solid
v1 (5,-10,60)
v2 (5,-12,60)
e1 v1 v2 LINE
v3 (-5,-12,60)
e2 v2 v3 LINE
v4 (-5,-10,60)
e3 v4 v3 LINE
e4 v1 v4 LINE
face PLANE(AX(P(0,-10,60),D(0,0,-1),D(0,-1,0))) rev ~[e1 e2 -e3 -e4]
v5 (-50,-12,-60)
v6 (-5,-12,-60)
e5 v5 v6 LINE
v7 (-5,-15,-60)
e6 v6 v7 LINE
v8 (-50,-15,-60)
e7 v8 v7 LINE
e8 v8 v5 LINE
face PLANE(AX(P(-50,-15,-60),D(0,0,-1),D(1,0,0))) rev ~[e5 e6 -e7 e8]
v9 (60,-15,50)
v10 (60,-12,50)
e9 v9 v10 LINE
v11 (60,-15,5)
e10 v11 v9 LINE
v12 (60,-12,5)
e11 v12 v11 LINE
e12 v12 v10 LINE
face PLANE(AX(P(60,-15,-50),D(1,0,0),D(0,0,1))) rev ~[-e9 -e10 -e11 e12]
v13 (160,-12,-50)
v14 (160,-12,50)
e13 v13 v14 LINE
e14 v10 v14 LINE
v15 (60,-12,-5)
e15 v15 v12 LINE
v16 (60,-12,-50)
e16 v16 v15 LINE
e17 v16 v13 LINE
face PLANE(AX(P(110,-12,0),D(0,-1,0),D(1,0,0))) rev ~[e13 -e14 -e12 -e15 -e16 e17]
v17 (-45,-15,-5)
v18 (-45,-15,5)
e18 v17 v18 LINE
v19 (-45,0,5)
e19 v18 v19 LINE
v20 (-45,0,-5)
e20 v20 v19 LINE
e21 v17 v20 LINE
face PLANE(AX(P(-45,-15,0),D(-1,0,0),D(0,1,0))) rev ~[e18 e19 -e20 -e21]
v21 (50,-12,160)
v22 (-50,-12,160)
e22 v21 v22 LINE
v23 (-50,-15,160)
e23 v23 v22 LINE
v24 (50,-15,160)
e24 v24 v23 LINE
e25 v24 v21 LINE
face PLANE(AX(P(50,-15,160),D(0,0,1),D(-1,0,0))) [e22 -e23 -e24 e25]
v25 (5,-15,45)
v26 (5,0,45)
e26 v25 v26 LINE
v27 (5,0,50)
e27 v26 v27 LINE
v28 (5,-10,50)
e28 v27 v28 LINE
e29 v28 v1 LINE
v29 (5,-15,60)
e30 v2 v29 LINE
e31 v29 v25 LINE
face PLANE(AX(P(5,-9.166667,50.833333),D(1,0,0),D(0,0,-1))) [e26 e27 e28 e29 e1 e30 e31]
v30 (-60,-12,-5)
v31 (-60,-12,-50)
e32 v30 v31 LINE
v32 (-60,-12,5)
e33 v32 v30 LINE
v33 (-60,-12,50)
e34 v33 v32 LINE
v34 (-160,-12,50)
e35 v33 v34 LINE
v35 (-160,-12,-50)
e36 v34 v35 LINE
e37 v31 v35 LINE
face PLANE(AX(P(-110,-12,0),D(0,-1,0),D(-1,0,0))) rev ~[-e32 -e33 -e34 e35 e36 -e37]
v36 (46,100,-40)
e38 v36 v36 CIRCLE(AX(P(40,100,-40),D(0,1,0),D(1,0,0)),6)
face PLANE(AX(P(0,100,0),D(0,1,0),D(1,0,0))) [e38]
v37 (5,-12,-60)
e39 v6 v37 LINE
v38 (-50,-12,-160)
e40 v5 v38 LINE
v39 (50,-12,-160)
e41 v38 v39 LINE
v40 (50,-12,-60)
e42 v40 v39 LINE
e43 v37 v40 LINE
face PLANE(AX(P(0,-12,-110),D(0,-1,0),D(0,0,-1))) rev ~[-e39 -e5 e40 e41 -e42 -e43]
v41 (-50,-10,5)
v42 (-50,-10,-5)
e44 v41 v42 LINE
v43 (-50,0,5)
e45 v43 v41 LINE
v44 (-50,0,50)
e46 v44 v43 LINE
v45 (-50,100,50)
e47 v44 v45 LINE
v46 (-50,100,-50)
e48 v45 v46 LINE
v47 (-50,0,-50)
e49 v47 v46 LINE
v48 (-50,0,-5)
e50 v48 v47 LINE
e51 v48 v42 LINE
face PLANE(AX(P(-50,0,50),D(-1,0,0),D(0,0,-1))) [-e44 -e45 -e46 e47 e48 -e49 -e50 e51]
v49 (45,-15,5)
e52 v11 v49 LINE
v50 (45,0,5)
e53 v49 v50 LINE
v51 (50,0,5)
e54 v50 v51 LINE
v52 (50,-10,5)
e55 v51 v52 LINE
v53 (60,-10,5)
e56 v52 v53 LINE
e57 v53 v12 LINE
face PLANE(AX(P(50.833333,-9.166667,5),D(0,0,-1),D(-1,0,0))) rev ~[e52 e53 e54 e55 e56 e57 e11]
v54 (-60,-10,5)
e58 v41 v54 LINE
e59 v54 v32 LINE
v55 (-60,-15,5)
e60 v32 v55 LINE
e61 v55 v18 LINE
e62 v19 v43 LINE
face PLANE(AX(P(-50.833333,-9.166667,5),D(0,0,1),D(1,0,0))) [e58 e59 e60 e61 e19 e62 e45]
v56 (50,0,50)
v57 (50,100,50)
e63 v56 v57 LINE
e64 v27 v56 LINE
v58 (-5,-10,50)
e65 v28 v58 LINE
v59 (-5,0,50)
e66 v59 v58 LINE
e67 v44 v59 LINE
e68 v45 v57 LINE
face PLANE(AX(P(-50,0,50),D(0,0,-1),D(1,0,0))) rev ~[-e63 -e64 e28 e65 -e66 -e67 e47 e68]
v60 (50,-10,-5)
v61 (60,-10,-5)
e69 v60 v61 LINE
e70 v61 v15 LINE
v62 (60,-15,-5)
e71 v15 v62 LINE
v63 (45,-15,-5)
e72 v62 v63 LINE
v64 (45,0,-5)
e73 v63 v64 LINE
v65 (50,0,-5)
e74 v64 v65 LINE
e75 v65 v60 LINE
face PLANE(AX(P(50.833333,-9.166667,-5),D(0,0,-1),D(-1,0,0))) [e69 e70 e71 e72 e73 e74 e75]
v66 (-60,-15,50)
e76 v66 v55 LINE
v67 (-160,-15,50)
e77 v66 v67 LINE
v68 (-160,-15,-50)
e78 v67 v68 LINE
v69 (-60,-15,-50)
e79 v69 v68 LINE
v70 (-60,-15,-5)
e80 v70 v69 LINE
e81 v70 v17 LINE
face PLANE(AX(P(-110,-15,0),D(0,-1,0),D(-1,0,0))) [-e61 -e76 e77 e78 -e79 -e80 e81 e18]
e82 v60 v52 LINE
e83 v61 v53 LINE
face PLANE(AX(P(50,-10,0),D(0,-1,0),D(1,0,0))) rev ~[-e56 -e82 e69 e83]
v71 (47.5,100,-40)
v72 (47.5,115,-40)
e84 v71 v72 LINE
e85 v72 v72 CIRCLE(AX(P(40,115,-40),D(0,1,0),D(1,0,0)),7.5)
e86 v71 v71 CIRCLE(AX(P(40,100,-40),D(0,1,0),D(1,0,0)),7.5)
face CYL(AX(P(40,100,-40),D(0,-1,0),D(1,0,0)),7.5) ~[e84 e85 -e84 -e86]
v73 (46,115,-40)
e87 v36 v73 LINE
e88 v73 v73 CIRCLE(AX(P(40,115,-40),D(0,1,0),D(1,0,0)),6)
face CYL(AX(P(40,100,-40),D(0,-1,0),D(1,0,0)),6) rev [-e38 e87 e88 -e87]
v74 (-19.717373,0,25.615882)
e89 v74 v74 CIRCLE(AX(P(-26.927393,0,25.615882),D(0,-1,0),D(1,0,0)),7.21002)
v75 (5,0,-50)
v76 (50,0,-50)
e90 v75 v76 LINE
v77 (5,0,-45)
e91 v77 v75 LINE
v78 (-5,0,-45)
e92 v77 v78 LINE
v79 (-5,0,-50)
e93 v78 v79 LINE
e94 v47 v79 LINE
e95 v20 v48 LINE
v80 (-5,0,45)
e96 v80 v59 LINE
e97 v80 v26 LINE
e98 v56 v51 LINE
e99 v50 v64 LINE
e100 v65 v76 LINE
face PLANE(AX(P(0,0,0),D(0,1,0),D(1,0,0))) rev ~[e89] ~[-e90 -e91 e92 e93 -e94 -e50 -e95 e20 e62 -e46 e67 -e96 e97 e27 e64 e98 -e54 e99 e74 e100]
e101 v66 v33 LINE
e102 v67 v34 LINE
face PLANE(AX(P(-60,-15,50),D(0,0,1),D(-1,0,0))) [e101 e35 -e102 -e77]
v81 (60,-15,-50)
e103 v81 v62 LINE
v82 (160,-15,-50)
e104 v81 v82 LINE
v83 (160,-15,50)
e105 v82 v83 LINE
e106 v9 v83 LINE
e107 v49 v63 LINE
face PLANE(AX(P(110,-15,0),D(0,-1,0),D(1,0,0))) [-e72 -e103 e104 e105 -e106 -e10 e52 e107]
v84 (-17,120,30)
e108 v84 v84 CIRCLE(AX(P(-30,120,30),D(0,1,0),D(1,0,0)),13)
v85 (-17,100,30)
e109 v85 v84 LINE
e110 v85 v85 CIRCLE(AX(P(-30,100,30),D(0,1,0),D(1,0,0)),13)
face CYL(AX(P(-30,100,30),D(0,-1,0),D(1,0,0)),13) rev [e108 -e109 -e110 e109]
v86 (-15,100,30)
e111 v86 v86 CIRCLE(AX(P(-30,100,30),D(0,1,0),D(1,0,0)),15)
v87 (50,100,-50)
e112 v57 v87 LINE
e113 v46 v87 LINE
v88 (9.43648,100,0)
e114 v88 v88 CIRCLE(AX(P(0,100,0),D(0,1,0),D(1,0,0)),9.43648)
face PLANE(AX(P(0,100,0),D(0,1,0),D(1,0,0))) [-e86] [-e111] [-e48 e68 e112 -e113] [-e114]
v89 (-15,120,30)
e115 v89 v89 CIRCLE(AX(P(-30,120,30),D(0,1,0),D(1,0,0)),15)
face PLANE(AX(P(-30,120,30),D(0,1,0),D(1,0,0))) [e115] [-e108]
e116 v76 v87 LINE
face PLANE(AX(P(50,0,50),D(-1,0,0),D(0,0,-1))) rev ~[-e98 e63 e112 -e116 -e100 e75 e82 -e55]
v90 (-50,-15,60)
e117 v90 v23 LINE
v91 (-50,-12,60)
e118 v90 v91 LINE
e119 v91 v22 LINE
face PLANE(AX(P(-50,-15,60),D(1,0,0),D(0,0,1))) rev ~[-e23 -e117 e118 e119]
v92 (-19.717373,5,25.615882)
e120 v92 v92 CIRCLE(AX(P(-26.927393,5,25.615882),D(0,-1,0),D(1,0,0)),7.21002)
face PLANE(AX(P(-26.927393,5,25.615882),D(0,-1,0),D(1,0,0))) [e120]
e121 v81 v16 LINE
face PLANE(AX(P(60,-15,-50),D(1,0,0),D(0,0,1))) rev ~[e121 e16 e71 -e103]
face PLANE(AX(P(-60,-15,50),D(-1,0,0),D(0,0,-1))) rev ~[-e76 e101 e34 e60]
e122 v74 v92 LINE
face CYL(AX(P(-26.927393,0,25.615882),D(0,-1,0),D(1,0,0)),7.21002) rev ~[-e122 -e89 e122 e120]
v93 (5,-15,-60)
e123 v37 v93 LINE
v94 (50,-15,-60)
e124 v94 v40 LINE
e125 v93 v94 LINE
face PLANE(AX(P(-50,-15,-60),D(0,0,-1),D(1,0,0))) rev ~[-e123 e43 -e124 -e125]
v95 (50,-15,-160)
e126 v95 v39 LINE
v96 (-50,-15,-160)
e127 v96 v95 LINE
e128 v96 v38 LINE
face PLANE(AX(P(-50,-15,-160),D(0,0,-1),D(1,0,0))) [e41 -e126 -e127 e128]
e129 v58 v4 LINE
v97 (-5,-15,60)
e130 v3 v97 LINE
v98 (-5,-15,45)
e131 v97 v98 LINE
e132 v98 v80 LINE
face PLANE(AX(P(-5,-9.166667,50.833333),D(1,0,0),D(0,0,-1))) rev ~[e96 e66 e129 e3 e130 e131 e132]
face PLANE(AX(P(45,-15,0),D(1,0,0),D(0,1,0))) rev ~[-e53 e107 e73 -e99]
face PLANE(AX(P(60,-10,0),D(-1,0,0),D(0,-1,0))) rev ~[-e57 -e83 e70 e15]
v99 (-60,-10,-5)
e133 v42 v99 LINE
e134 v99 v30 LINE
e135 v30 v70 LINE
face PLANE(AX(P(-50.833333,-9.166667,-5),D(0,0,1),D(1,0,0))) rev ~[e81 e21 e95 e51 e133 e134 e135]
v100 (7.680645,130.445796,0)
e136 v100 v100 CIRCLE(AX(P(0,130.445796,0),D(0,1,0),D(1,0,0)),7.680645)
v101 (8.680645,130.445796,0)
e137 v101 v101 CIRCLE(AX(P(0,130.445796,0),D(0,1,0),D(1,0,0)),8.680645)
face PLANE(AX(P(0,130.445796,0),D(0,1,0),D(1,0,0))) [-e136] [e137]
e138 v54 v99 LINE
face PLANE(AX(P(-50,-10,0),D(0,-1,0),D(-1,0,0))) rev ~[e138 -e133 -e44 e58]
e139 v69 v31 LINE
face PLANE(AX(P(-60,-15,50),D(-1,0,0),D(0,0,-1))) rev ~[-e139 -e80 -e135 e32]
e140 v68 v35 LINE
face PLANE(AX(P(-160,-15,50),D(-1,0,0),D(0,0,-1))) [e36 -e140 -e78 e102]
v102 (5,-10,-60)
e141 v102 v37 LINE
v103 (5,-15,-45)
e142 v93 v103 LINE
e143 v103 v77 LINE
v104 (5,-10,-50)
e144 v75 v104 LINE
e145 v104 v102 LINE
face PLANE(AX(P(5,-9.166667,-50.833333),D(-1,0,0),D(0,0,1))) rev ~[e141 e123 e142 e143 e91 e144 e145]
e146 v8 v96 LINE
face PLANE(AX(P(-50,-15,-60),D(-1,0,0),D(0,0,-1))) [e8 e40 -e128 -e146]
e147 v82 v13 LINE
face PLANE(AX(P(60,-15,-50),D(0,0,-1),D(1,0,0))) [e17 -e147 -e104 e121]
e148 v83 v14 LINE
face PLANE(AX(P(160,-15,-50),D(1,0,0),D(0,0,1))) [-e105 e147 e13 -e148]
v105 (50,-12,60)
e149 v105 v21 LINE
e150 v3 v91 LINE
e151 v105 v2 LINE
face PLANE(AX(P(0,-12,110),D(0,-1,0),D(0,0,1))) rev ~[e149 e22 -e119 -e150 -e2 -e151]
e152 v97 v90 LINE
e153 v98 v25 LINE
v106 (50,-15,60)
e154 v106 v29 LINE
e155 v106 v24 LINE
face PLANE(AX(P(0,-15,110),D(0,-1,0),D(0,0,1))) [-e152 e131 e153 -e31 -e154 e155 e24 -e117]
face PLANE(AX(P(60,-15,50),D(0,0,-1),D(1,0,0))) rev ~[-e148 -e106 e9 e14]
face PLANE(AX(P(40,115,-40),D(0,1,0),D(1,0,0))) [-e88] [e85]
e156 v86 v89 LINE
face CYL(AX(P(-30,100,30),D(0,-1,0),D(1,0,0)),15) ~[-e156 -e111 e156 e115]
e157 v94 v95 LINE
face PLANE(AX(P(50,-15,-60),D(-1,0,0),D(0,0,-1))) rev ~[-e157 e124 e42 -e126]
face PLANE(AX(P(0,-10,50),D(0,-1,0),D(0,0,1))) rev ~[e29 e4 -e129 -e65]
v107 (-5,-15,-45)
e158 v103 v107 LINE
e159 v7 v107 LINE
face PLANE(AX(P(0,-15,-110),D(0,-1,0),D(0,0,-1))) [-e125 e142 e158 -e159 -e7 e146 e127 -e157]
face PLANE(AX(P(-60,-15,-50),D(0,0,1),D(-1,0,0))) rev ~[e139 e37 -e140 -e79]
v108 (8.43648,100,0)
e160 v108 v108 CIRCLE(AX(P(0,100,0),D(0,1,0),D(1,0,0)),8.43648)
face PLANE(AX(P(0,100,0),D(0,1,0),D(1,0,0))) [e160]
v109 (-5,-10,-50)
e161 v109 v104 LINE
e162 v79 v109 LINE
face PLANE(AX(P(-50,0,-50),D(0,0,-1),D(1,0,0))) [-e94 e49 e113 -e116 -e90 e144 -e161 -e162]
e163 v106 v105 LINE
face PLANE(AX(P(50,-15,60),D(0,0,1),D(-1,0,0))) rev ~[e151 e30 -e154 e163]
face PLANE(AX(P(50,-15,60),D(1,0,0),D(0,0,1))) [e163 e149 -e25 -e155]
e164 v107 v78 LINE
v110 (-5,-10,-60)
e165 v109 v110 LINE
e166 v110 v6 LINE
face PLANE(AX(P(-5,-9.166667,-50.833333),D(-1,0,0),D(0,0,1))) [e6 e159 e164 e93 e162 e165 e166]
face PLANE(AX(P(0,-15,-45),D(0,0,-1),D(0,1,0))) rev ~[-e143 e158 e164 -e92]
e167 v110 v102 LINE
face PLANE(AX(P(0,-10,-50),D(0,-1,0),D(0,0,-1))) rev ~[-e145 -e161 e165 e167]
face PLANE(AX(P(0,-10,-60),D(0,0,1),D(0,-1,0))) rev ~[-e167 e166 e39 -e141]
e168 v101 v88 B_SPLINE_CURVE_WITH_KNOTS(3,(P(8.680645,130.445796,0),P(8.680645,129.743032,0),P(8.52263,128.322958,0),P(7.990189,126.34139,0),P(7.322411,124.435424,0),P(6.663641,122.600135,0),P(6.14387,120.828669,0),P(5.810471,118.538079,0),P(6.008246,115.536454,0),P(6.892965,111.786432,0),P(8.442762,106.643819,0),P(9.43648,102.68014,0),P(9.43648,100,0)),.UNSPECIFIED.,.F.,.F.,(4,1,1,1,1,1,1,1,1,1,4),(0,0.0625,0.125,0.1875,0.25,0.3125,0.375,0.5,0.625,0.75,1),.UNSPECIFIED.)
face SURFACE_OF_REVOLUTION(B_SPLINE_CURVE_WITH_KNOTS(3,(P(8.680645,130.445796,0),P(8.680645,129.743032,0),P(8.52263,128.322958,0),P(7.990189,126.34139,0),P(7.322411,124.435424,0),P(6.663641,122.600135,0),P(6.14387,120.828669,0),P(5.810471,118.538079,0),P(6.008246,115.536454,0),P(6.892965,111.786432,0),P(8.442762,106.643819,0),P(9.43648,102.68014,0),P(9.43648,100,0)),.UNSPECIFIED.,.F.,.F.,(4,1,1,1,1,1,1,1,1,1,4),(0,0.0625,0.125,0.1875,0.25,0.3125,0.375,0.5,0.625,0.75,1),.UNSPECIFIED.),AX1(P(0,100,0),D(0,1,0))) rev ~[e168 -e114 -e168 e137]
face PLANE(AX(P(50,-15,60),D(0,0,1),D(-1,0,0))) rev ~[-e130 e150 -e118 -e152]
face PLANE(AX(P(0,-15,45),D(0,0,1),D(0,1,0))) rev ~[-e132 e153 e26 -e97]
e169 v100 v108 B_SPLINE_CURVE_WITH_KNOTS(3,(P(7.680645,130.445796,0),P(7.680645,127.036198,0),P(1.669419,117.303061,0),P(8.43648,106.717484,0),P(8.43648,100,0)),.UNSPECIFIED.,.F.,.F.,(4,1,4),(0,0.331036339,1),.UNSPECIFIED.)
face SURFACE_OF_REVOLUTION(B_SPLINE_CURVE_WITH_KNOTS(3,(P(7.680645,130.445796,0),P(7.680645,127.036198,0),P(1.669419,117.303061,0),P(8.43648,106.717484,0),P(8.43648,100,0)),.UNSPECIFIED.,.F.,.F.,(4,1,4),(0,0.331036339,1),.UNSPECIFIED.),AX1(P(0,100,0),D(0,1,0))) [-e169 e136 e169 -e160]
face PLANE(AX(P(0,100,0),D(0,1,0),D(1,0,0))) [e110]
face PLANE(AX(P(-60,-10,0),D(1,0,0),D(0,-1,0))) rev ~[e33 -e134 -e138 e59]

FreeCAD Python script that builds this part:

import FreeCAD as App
import Part
import Sketcher

V = App.Vector


def add_polygon(sketch, points):
    """Adds a closed chain of lines whose ends are joined by coincident constraints."""
    first, n = sketch.GeometryCount, len(points)
    for a, b in zip(points, points[1:] + points[:1]):
        sketch.addGeometry(Part.LineSegment(App.Vector(*a, 0), App.Vector(*b, 0)), False)
    for i in range(n):
        sketch.addConstraint(Sketcher.Constraint("Coincident", first + i, 2, first + (i + 1) % n, 1))

doc = App.newDocument("Part")
params = doc.addObject("Spreadsheet::Sheet", "Params")
for row, (alias, value) in enumerate([
    ("sketch1_width", "100 mm"),
    ("pad1_length", "100 mm"),
    ("sketch2_width", "10 mm"),
    ("sketch2_width2", "5 mm"),
    ("pad2_length", "10 mm"),
    ("sketch3_width", "100 mm"),
    ("pad3_length", "3 mm"),
    ("sketch4_diameter", "30 mm"),
    ("sketch4_diameter2", "26 mm"),
    ("pad4_length", "20 mm"),
    ("sketch5_diameter", "15 mm"),
    ("sketch5_diameter2", "12 mm"),
    ("pad5_length", "15 mm"),
    ("revolution_angle", "360 deg"),
    ("pocket1_length", "5 mm"),
], start=1):
    params.set(f"A{row}", alias)
    params.set(f"B{row}", "=" + value)
    params.setAlias(f"B{row}", alias)

body = doc.addObject("PartDesign::Body", "Body")

sketch1 = body.newObject("Sketcher::SketchObject", "Sketch")
sketch1.AttachmentSupport = (doc.getObject("XZ_Plane"), [""])
sketch1.MapMode = "FlatFace"
add_polygon(sketch1, [(-50, -50), (-50, 50), (50, 50), (50, -50)])
sketch1.addConstraint([
    Sketcher.Constraint("Vertical", 0),
    Sketcher.Constraint("Horizontal", 1),
    Sketcher.Constraint("Vertical", 2),
    Sketcher.Constraint("Horizontal", 3),
    Sketcher.Constraint("Symmetric", 0, 2, 2, 2, -1, 1),
    Sketcher.Constraint("Equal", 3, 0),
    Sketcher.Constraint("DistanceX", 1, 1, 1, 2, 100.0),
])
sketch1.setExpression("Constraints[10]", "Params.sketch1_width")
pad1 = body.newObject("PartDesign::Pad", "Pad")
pad1.Profile = sketch1
pad1.setExpression("Length", "Params.pad1_length")
pad1.Reversed = True

sketch2 = body.newObject("Sketcher::SketchObject", "Sketch001")
sketch2.AttachmentSupport = (doc.getObject("XY_Plane"), [""])
sketch2.MapMode = "FlatFace"
add_polygon(sketch2, [(60, -15), (60, -10), (50, -10), (50, 0), (45, 0), (45, -15)])
sketch2.addConstraint([
    Sketcher.Constraint("Vertical", 0),
    Sketcher.Constraint("Horizontal", 1),
    Sketcher.Constraint("Vertical", 2),
    Sketcher.Constraint("Horizontal", 3),
    Sketcher.Constraint("Vertical", 4),
    Sketcher.Constraint("Horizontal", 5),
    Sketcher.Constraint("PointOnObject", 2, 2, -1),
    Sketcher.Constraint("Equal", 3, 0),
    Sketcher.Constraint("Equal", 1, 2),
    Sketcher.Constraint("DistanceX", 1, 2, 1, 1, 10.0),
    Sketcher.Constraint("DistanceX", 3, 2, 3, 1, 5.0),
    Sketcher.Constraint("DistanceX", -1, 1, 0, 2, 60.0),
])
sketch2.setExpression("Constraints[15]", "Params.sketch2_width")
sketch2.setExpression("Constraints[16]", "Params.sketch2_width2")
pad2 = body.newObject("PartDesign::Pad", "Pad001")
pad2.Profile = sketch2
pad2.setExpression("Length", "Params.pad2_length")
pad2.Midplane = True

sketch3 = body.newObject("Sketcher::SketchObject", "Sketch002")
sketch3.AttachmentSupport = (doc.getObject("XZ_Plane"), [""])
sketch3.MapMode = "FlatFace"
sketch3.AttachmentOffset = App.Placement(V(0, 0, 15), App.Rotation())
add_polygon(sketch3, [(60, 50), (60, -50), (160, -50), (160, 50)])
sketch3.addConstraint([
    Sketcher.Constraint("Vertical", 0),
    Sketcher.Constraint("Horizontal", 1),
    Sketcher.Constraint("Vertical", 2),
    Sketcher.Constraint("Horizontal", 3),
    Sketcher.Constraint("Equal", 3, 0),
    Sketcher.Constraint("DistanceX", 1, 1, 1, 2, 100.0),
    Sketcher.Constraint("DistanceX", -1, 1, 0, 2, 60.0),
    Sketcher.Constraint("DistanceY", 0, 2, -1, 1, 50.0),
])
sketch3.setExpression("Constraints[9]", "Params.sketch3_width")
pad3 = body.newObject("PartDesign::Pad", "Pad002")
pad3.Profile = sketch3
pad3.setExpression("Length", "Params.pad3_length")
pad3.Reversed = True
doc.recompute()

polarpattern = body.newObject("PartDesign::PolarPattern", "PolarPattern")
polarpattern.Originals = [pad2, pad3]
polarpattern.Axis = (doc.getObject("Y_Axis"), [""])
polarpattern.Angle = 360
polarpattern.Occurrences = 4
body.Tip = polarpattern

sketch4 = body.newObject("Sketcher::SketchObject", "Sketch003")
sketch4.AttachmentSupport = (doc.getObject("XZ_Plane"), [""])
sketch4.MapMode = "FlatFace"
sketch4.AttachmentOffset = App.Placement(V(0, 0, -100), App.Rotation())
sketch4.addGeometry([
    Part.Circle(V(-30, 30, 0), V(0, 0, 1), 15),
    Part.Circle(V(-30, 30, 0), V(0, 0, 1), 13),
], False)
sketch4.addConstraint([
    Sketcher.Constraint("Coincident", 1, 3, 0, 3),
    Sketcher.Constraint("Diameter", 0, 30.0),
    Sketcher.Constraint("Diameter", 1, 26.0),
    Sketcher.Constraint("DistanceX", 0, 3, -1, 1, 30.0),
    Sketcher.Constraint("DistanceY", -1, 1, 0, 3, 30.0),
])
sketch4.setExpression("Constraints[1]", "Params.sketch4_diameter")
sketch4.setExpression("Constraints[2]", "Params.sketch4_diameter2")
pad4 = body.newObject("PartDesign::Pad", "Pad003")
pad4.Profile = sketch4
pad4.setExpression("Length", "Params.pad4_length")
pad4.Reversed = True

sketch5 = body.newObject("Sketcher::SketchObject", "Sketch004")
sketch5.AttachmentSupport = (doc.getObject("XZ_Plane"), [""])
sketch5.MapMode = "FlatFace"
sketch5.AttachmentOffset = App.Placement(V(0, 0, -100), App.Rotation())
sketch5.addGeometry([
    Part.Circle(V(40, -40, 0), V(0, 0, 1), 8),
    Part.Circle(V(40, -40, 0), V(0, 0, 1), 6),
], False)
sketch5.addConstraint([
    Sketcher.Constraint("Coincident", 1, 3, 0, 3),
    Sketcher.Constraint("Diameter", 0, 15.0),
    Sketcher.Constraint("Diameter", 1, 12.0),
    Sketcher.Constraint("DistanceX", -1, 1, 0, 3, 40.0),
    Sketcher.Constraint("DistanceY", 0, 3, -1, 1, 40.0),
])
sketch5.setExpression("Constraints[1]", "Params.sketch5_diameter")
sketch5.setExpression("Constraints[2]", "Params.sketch5_diameter2")
pad5 = body.newObject("PartDesign::Pad", "Pad004")
pad5.Profile = sketch5
pad5.setExpression("Length", "Params.pad5_length")
pad5.Reversed = True

sketch6 = body.newObject("Sketcher::SketchObject", "Sketch005")
sketch6.AttachmentSupport = (doc.getObject("XY_Plane"), [""])
sketch6.MapMode = "FlatFace"
sketch6.addGeometry([
    Part.LineSegment(V(8.680645, 130.445796, 0), V(7.680645, 130.445796, 0)),
    Part.BSplineCurve([V(7.680645, 130.445796, 0), V(7.680645, 127.036198, 0), V(1.669419, 117.303061, 0), V(8.43648, 106.717484, 0), V(8.43648, 100, 0)], [4, 1, 4], [0, 0.331036339, 1], False, 3, [1, 1, 1, 1, 1], False),
    Part.LineSegment(V(8.43648, 100, 0), V(9.43648, 100, 0)),
    Part.BSplineCurve([V(8.680645, 130.445796, 0), V(8.680645, 129.743032, 0), V(8.52263, 128.322958, 0), V(7.990189, 126.34139, 0), V(7.322411, 124.435424, 0), V(6.663641, 122.600135, 0), V(6.14387, 120.828669, 0), V(5.810471, 118.538079, 0), V(6.008246, 115.536454, 0), V(6.892965, 111.786432, 0), V(8.442762, 106.643819, 0), V(9.43648, 102.68014, 0), V(9.43648, 100, 0)], [4, 1, 1, 1, 1, 1, 1, 1, 1, 1, 4], [0, 0.0625, 0.125, 0.1875, 0.25, 0.3125, 0.375, 0.5, 0.625, 0.75, 1], False, 3, [1, 1, 1, 1, 1, 1, 1, 1, 1, 1, 1, 1, 1], False),
], False)
sketch6.addConstraint([
    Sketcher.Constraint("Block", 1),
    Sketcher.Constraint("Block", 3),
    Sketcher.Constraint("Coincident", 0, 2, 1, 1),
    Sketcher.Constraint("Coincident", 1, 2, 2, 1),
    Sketcher.Constraint("Coincident", 2, 2, 3, 2),
    Sketcher.Constraint("Coincident", 3, 1, 0, 1),
])
revolution = body.newObject("PartDesign::Revolution", "Revolution")
revolution.Profile = sketch6
revolution.ReferenceAxis = (sketch6, ["V_Axis"])
revolution.setExpression("Angle", "Params.revolution_angle")

sketch7 = body.newObject("Sketcher::SketchObject", "Sketch006")
sketch7.AttachmentSupport = (doc.getObject("XZ_Plane"), [""])
sketch7.MapMode = "FlatFace"
sketch7.addGeometry(Part.Circle(V(-27, 26, 0), V(0, 0, 1), 7), False)
sketch7.addConstraint([
    Sketcher.Constraint("Diameter", 0, 14.42004),
    Sketcher.Constraint("DistanceX", 0, 3, -1, 1, 26.927393),
    Sketcher.Constraint("DistanceY", -1, 1, 0, 3, 25.615882),
])
pocket1 = body.newObject("PartDesign::Pocket", "Pocket")
pocket1.Profile = sketch7
pocket1.setExpression("Length", "Params.pocket1_length")

doc.recompute()
